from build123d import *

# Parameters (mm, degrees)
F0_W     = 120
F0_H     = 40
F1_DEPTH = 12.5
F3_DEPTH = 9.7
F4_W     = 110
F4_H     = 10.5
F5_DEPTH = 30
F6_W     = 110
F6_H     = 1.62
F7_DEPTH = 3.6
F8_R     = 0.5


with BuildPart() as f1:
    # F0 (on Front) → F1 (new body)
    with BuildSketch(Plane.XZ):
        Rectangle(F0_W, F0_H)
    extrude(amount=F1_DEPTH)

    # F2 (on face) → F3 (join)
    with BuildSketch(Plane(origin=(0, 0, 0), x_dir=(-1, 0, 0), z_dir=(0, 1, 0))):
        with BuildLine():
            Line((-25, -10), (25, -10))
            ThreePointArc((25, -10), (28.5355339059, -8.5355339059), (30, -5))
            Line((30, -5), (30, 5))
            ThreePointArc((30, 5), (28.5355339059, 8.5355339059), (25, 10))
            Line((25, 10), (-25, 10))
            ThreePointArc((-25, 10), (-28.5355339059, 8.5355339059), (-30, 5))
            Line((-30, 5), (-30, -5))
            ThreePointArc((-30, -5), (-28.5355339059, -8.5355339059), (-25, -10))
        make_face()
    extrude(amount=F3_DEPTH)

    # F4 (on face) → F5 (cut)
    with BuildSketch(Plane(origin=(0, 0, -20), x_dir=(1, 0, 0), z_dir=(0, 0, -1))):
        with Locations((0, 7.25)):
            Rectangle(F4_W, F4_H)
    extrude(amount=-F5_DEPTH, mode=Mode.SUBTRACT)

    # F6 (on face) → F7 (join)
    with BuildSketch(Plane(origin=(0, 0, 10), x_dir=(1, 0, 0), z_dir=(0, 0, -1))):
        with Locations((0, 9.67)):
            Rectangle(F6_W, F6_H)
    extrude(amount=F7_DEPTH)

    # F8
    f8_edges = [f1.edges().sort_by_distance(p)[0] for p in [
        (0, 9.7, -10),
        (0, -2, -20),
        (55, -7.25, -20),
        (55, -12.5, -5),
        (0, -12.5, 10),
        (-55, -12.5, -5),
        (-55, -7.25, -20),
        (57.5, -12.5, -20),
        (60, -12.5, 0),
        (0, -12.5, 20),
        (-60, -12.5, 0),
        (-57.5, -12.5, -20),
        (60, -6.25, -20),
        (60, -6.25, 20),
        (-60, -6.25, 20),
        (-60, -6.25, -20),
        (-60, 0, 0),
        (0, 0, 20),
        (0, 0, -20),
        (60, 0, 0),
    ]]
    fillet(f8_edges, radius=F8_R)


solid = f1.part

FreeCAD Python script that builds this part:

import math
import FreeCAD as App
import Part
import Sketcher


def edges_at(feature, points):
    """Names of the edges that pass closest to the given points."""
    edges = feature.Shape.Edges
    near = lambda p: min(range(len(edges)), key=lambda i: edges[i].distToShape(Part.Vertex(*p))[0])
    return sorted({f"Edge{near(p) + 1}" for p in points})

doc = App.newDocument("Part")
body = doc.addObject("PartDesign::Body", "Body")

sketch1 = body.newObject("Sketcher::SketchObject", "Sketch")
sketch1.AttachmentSupport = (doc.getObject("XZ_Plane"), [""])
sketch1.MapMode = "FlatFace"
sketch1.addGeometry([
    Part.LineSegment(App.Vector(-60, 20, 0), App.Vector(-60, -20, 0)),
    Part.LineSegment(App.Vector(-60, -20, 0), App.Vector(60, -20, 0)),
    Part.LineSegment(App.Vector(60, -20, 0), App.Vector(60, 20, 0)),
    Part.LineSegment(App.Vector(60, 20, 0), App.Vector(-60, 20, 0)),
], False)
sketch1.addConstraint([
    Sketcher.Constraint("Coincident", 0, 2, 1, 1),
    Sketcher.Constraint("Coincident", 1, 2, 2, 1),
    Sketcher.Constraint("Coincident", 2, 2, 3, 1),
    Sketcher.Constraint("Coincident", 3, 2, 0, 1),
    Sketcher.Constraint("Vertical", 0),
    Sketcher.Constraint("Horizontal", 1),
    Sketcher.Constraint("Vertical", 2),
    Sketcher.Constraint("Horizontal", 3),
    Sketcher.Constraint("Symmetric", 0, 2, 2, 2, -1, 1),
    Sketcher.Constraint("DistanceX", 1, 1, 1, 2, 120.0),
    Sketcher.Constraint("DistanceY", 0, 2, 0, 1, 40.0),
])
pad1 = body.newObject("PartDesign::Pad", "Pad")
pad1.Profile = sketch1
pad1.Length = 12.5

sketch2 = body.newObject("Sketcher::SketchObject", "Sketch001")
sketch2.AttachmentSupport = (doc.getObject("XZ_Plane"), [""])
sketch2.MapMode = "FlatFace"
sketch2.addGeometry([
    Part.LineSegment(App.Vector(25, -10, 0), App.Vector(-25, -10, 0)),
    Part.ArcOfCircle(Part.Circle(App.Vector(-25, -5, 0), App.Vector(0, 0, 1), 5), math.radians(180), math.radians(270)),
    Part.LineSegment(App.Vector(-30, -5, 0), App.Vector(-30, 5, 0)),
    Part.ArcOfCircle(Part.Circle(App.Vector(-25, 5, 0), App.Vector(0, 0, 1), 5), math.radians(90), math.radians(180)),
    Part.LineSegment(App.Vector(-25, 10, 0), App.Vector(25, 10, 0)),
    Part.ArcOfCircle(Part.Circle(App.Vector(25, 5, 0), App.Vector(0, 0, 1), 5), math.radians(0), math.radians(90)),
    Part.LineSegment(App.Vector(30, 5, 0), App.Vector(30, -5, 0)),
    Part.ArcOfCircle(Part.Circle(App.Vector(25, -5, 0), App.Vector(0, 0, 1), 5), math.radians(-90), math.radians(0)),
], False)
sketch2.addConstraint([
    Sketcher.Constraint("Tangent", 0, 2, 1, 2),
    Sketcher.Constraint("Tangent", 1, 1, 2, 1),
    Sketcher.Constraint("Tangent", 2, 2, 3, 2),
    Sketcher.Constraint("Tangent", 3, 1, 4, 1),
    Sketcher.Constraint("Tangent", 4, 2, 5, 2),
    Sketcher.Constraint("Tangent", 5, 1, 6, 1),
    Sketcher.Constraint("Tangent", 6, 2, 7, 2),
    Sketcher.Constraint("Tangent", 7, 1, 0, 1),
    Sketcher.Constraint("Horizontal", 0),
    Sketcher.Constraint("Vertical", 2),
    Sketcher.Constraint("Horizontal", 4),
    Sketcher.Constraint("Vertical", 6),
    Sketcher.Constraint("Equal", 1, 3),
    Sketcher.Constraint("Equal", 3, 5),
    Sketcher.Constraint("Equal", 5, 7),
    Sketcher.Constraint("Symmetric", 1, 3, 5, 3, -1, 1),
    Sketcher.Constraint("Radius", 1, 5.0),
    Sketcher.Constraint("DistanceX", 0, 2, 0, 1, 50.0),
    Sketcher.Constraint("DistanceY", 2, 1, 2, 2, 10.0),
])
pad2 = body.newObject("PartDesign::Pad", "Pad001")
pad2.Profile = sketch2
pad2.Length = 9.7
pad2.Reversed = True

sketch3 = body.newObject("Sketcher::SketchObject", "Sketch002")
sketch3.AttachmentSupport = (doc.getObject("XY_Plane"), [""])
sketch3.MapMode = "FlatFace"
sketch3.AttachmentOffset = App.Placement(App.Vector(0, 0, -20), App.Rotation())
sketch3.addGeometry([
    Part.LineSegment(App.Vector(-55, -12.5, 0), App.Vector(-55, -2, 0)),
    Part.LineSegment(App.Vector(-55, -2, 0), App.Vector(55, -2, 0)),
    Part.LineSegment(App.Vector(55, -2, 0), App.Vector(55, -12.5, 0)),
    Part.LineSegment(App.Vector(55, -12.5, 0), App.Vector(-55, -12.5, 0)),
], False)
sketch3.addConstraint([
    Sketcher.Constraint("Coincident", 0, 2, 1, 1),
    Sketcher.Constraint("Coincident", 1, 2, 2, 1),
    Sketcher.Constraint("Coincident", 2, 2, 3, 1),
    Sketcher.Constraint("Coincident", 3, 2, 0, 1),
    Sketcher.Constraint("Vertical", 0),
    Sketcher.Constraint("Horizontal", 1),
    Sketcher.Constraint("Vertical", 2),
    Sketcher.Constraint("Horizontal", 3),
    Sketcher.Constraint("DistanceX", 1, 1, 1, 2, 110.0),
    Sketcher.Constraint("DistanceY", 0, 1, 0, 2, 10.5),
    Sketcher.Constraint("DistanceX", 0, 2, -1, 1, 55.0),
    Sketcher.Constraint("DistanceY", 0, 2, -1, 1, 2.0),
])
pocket1 = body.newObject("PartDesign::Pocket", "Pocket")
pocket1.Profile = sketch3
pocket1.Length = 30
pocket1.Reversed = True

sketch4 = body.newObject("Sketcher::SketchObject", "Sketch003")
sketch4.AttachmentSupport = (doc.getObject("XY_Plane"), [""])
sketch4.MapMode = "FlatFace"
sketch4.AttachmentOffset = App.Placement(App.Vector(0, 0, 10), App.Rotation())
sketch4.addGeometry([
    Part.LineSegment(App.Vector(-55, -10.48, 0), App.Vector(-55, -8.86, 0)),
    Part.LineSegment(App.Vector(-55, -8.86, 0), App.Vector(55, -8.86, 0)),
    Part.LineSegment(App.Vector(55, -8.86, 0), App.Vector(55, -10.48, 0)),
    Part.LineSegment(App.Vector(55, -10.48, 0), App.Vector(-55, -10.48, 0)),
], False)
sketch4.addConstraint([
    Sketcher.Constraint("Coincident", 0, 2, 1, 1),
    Sketcher.Constraint("Coincident", 1, 2, 2, 1),
    Sketcher.Constraint("Coincident", 2, 2, 3, 1),
    Sketcher.Constraint("Coincident", 3, 2, 0, 1),
    Sketcher.Constraint("Vertical", 0),
    Sketcher.Constraint("Horizontal", 1),
    Sketcher.Constraint("Vertical", 2),
    Sketcher.Constraint("Horizontal", 3),
    Sketcher.Constraint("DistanceX", 1, 1, 1, 2, 110.0),
    Sketcher.Constraint("DistanceX", 0, 2, -1, 1, 55.0),
    Sketcher.Constraint("DistanceY", 0, 1, 0, 2, 1.62),
    Sketcher.Constraint("DistanceY", 0, 2, -1, 1, 8.86),
])
pad3 = body.newObject("PartDesign::Pad", "Pad002")
pad3.Profile = sketch4
pad3.Length = 3.6
pad3.Reversed = True
doc.recompute()

fillet = body.newObject("PartDesign::Fillet", "Fillet")
fillet.Base = (pad3, edges_at(pad3, [
    (0, 9.7, -10),
    (0, -2, -20),
    (55, -7.25, -20),
    (55, -12.5, -5),
    (0, -12.5, 10),
    (-55, -12.5, -5),
    (-55, -7.25, -20),
    (57.5, -12.5, -20),
    (60, -12.5, 0),
    (0, -12.5, 20),
    (-60, -12.5, 0),
    (-57.5, -12.5, -20),
    (60, -6.25, -20),
    (60, -6.25, 20),
    (-60, -6.25, 20),
    (-60, -6.25, -20),
    (-60, 0, 0),
    (0, 0, 20),
    (0, 0, -20),
    (60, 0, 0),
]))
fillet.Radius = 0.5

doc.recompute()
